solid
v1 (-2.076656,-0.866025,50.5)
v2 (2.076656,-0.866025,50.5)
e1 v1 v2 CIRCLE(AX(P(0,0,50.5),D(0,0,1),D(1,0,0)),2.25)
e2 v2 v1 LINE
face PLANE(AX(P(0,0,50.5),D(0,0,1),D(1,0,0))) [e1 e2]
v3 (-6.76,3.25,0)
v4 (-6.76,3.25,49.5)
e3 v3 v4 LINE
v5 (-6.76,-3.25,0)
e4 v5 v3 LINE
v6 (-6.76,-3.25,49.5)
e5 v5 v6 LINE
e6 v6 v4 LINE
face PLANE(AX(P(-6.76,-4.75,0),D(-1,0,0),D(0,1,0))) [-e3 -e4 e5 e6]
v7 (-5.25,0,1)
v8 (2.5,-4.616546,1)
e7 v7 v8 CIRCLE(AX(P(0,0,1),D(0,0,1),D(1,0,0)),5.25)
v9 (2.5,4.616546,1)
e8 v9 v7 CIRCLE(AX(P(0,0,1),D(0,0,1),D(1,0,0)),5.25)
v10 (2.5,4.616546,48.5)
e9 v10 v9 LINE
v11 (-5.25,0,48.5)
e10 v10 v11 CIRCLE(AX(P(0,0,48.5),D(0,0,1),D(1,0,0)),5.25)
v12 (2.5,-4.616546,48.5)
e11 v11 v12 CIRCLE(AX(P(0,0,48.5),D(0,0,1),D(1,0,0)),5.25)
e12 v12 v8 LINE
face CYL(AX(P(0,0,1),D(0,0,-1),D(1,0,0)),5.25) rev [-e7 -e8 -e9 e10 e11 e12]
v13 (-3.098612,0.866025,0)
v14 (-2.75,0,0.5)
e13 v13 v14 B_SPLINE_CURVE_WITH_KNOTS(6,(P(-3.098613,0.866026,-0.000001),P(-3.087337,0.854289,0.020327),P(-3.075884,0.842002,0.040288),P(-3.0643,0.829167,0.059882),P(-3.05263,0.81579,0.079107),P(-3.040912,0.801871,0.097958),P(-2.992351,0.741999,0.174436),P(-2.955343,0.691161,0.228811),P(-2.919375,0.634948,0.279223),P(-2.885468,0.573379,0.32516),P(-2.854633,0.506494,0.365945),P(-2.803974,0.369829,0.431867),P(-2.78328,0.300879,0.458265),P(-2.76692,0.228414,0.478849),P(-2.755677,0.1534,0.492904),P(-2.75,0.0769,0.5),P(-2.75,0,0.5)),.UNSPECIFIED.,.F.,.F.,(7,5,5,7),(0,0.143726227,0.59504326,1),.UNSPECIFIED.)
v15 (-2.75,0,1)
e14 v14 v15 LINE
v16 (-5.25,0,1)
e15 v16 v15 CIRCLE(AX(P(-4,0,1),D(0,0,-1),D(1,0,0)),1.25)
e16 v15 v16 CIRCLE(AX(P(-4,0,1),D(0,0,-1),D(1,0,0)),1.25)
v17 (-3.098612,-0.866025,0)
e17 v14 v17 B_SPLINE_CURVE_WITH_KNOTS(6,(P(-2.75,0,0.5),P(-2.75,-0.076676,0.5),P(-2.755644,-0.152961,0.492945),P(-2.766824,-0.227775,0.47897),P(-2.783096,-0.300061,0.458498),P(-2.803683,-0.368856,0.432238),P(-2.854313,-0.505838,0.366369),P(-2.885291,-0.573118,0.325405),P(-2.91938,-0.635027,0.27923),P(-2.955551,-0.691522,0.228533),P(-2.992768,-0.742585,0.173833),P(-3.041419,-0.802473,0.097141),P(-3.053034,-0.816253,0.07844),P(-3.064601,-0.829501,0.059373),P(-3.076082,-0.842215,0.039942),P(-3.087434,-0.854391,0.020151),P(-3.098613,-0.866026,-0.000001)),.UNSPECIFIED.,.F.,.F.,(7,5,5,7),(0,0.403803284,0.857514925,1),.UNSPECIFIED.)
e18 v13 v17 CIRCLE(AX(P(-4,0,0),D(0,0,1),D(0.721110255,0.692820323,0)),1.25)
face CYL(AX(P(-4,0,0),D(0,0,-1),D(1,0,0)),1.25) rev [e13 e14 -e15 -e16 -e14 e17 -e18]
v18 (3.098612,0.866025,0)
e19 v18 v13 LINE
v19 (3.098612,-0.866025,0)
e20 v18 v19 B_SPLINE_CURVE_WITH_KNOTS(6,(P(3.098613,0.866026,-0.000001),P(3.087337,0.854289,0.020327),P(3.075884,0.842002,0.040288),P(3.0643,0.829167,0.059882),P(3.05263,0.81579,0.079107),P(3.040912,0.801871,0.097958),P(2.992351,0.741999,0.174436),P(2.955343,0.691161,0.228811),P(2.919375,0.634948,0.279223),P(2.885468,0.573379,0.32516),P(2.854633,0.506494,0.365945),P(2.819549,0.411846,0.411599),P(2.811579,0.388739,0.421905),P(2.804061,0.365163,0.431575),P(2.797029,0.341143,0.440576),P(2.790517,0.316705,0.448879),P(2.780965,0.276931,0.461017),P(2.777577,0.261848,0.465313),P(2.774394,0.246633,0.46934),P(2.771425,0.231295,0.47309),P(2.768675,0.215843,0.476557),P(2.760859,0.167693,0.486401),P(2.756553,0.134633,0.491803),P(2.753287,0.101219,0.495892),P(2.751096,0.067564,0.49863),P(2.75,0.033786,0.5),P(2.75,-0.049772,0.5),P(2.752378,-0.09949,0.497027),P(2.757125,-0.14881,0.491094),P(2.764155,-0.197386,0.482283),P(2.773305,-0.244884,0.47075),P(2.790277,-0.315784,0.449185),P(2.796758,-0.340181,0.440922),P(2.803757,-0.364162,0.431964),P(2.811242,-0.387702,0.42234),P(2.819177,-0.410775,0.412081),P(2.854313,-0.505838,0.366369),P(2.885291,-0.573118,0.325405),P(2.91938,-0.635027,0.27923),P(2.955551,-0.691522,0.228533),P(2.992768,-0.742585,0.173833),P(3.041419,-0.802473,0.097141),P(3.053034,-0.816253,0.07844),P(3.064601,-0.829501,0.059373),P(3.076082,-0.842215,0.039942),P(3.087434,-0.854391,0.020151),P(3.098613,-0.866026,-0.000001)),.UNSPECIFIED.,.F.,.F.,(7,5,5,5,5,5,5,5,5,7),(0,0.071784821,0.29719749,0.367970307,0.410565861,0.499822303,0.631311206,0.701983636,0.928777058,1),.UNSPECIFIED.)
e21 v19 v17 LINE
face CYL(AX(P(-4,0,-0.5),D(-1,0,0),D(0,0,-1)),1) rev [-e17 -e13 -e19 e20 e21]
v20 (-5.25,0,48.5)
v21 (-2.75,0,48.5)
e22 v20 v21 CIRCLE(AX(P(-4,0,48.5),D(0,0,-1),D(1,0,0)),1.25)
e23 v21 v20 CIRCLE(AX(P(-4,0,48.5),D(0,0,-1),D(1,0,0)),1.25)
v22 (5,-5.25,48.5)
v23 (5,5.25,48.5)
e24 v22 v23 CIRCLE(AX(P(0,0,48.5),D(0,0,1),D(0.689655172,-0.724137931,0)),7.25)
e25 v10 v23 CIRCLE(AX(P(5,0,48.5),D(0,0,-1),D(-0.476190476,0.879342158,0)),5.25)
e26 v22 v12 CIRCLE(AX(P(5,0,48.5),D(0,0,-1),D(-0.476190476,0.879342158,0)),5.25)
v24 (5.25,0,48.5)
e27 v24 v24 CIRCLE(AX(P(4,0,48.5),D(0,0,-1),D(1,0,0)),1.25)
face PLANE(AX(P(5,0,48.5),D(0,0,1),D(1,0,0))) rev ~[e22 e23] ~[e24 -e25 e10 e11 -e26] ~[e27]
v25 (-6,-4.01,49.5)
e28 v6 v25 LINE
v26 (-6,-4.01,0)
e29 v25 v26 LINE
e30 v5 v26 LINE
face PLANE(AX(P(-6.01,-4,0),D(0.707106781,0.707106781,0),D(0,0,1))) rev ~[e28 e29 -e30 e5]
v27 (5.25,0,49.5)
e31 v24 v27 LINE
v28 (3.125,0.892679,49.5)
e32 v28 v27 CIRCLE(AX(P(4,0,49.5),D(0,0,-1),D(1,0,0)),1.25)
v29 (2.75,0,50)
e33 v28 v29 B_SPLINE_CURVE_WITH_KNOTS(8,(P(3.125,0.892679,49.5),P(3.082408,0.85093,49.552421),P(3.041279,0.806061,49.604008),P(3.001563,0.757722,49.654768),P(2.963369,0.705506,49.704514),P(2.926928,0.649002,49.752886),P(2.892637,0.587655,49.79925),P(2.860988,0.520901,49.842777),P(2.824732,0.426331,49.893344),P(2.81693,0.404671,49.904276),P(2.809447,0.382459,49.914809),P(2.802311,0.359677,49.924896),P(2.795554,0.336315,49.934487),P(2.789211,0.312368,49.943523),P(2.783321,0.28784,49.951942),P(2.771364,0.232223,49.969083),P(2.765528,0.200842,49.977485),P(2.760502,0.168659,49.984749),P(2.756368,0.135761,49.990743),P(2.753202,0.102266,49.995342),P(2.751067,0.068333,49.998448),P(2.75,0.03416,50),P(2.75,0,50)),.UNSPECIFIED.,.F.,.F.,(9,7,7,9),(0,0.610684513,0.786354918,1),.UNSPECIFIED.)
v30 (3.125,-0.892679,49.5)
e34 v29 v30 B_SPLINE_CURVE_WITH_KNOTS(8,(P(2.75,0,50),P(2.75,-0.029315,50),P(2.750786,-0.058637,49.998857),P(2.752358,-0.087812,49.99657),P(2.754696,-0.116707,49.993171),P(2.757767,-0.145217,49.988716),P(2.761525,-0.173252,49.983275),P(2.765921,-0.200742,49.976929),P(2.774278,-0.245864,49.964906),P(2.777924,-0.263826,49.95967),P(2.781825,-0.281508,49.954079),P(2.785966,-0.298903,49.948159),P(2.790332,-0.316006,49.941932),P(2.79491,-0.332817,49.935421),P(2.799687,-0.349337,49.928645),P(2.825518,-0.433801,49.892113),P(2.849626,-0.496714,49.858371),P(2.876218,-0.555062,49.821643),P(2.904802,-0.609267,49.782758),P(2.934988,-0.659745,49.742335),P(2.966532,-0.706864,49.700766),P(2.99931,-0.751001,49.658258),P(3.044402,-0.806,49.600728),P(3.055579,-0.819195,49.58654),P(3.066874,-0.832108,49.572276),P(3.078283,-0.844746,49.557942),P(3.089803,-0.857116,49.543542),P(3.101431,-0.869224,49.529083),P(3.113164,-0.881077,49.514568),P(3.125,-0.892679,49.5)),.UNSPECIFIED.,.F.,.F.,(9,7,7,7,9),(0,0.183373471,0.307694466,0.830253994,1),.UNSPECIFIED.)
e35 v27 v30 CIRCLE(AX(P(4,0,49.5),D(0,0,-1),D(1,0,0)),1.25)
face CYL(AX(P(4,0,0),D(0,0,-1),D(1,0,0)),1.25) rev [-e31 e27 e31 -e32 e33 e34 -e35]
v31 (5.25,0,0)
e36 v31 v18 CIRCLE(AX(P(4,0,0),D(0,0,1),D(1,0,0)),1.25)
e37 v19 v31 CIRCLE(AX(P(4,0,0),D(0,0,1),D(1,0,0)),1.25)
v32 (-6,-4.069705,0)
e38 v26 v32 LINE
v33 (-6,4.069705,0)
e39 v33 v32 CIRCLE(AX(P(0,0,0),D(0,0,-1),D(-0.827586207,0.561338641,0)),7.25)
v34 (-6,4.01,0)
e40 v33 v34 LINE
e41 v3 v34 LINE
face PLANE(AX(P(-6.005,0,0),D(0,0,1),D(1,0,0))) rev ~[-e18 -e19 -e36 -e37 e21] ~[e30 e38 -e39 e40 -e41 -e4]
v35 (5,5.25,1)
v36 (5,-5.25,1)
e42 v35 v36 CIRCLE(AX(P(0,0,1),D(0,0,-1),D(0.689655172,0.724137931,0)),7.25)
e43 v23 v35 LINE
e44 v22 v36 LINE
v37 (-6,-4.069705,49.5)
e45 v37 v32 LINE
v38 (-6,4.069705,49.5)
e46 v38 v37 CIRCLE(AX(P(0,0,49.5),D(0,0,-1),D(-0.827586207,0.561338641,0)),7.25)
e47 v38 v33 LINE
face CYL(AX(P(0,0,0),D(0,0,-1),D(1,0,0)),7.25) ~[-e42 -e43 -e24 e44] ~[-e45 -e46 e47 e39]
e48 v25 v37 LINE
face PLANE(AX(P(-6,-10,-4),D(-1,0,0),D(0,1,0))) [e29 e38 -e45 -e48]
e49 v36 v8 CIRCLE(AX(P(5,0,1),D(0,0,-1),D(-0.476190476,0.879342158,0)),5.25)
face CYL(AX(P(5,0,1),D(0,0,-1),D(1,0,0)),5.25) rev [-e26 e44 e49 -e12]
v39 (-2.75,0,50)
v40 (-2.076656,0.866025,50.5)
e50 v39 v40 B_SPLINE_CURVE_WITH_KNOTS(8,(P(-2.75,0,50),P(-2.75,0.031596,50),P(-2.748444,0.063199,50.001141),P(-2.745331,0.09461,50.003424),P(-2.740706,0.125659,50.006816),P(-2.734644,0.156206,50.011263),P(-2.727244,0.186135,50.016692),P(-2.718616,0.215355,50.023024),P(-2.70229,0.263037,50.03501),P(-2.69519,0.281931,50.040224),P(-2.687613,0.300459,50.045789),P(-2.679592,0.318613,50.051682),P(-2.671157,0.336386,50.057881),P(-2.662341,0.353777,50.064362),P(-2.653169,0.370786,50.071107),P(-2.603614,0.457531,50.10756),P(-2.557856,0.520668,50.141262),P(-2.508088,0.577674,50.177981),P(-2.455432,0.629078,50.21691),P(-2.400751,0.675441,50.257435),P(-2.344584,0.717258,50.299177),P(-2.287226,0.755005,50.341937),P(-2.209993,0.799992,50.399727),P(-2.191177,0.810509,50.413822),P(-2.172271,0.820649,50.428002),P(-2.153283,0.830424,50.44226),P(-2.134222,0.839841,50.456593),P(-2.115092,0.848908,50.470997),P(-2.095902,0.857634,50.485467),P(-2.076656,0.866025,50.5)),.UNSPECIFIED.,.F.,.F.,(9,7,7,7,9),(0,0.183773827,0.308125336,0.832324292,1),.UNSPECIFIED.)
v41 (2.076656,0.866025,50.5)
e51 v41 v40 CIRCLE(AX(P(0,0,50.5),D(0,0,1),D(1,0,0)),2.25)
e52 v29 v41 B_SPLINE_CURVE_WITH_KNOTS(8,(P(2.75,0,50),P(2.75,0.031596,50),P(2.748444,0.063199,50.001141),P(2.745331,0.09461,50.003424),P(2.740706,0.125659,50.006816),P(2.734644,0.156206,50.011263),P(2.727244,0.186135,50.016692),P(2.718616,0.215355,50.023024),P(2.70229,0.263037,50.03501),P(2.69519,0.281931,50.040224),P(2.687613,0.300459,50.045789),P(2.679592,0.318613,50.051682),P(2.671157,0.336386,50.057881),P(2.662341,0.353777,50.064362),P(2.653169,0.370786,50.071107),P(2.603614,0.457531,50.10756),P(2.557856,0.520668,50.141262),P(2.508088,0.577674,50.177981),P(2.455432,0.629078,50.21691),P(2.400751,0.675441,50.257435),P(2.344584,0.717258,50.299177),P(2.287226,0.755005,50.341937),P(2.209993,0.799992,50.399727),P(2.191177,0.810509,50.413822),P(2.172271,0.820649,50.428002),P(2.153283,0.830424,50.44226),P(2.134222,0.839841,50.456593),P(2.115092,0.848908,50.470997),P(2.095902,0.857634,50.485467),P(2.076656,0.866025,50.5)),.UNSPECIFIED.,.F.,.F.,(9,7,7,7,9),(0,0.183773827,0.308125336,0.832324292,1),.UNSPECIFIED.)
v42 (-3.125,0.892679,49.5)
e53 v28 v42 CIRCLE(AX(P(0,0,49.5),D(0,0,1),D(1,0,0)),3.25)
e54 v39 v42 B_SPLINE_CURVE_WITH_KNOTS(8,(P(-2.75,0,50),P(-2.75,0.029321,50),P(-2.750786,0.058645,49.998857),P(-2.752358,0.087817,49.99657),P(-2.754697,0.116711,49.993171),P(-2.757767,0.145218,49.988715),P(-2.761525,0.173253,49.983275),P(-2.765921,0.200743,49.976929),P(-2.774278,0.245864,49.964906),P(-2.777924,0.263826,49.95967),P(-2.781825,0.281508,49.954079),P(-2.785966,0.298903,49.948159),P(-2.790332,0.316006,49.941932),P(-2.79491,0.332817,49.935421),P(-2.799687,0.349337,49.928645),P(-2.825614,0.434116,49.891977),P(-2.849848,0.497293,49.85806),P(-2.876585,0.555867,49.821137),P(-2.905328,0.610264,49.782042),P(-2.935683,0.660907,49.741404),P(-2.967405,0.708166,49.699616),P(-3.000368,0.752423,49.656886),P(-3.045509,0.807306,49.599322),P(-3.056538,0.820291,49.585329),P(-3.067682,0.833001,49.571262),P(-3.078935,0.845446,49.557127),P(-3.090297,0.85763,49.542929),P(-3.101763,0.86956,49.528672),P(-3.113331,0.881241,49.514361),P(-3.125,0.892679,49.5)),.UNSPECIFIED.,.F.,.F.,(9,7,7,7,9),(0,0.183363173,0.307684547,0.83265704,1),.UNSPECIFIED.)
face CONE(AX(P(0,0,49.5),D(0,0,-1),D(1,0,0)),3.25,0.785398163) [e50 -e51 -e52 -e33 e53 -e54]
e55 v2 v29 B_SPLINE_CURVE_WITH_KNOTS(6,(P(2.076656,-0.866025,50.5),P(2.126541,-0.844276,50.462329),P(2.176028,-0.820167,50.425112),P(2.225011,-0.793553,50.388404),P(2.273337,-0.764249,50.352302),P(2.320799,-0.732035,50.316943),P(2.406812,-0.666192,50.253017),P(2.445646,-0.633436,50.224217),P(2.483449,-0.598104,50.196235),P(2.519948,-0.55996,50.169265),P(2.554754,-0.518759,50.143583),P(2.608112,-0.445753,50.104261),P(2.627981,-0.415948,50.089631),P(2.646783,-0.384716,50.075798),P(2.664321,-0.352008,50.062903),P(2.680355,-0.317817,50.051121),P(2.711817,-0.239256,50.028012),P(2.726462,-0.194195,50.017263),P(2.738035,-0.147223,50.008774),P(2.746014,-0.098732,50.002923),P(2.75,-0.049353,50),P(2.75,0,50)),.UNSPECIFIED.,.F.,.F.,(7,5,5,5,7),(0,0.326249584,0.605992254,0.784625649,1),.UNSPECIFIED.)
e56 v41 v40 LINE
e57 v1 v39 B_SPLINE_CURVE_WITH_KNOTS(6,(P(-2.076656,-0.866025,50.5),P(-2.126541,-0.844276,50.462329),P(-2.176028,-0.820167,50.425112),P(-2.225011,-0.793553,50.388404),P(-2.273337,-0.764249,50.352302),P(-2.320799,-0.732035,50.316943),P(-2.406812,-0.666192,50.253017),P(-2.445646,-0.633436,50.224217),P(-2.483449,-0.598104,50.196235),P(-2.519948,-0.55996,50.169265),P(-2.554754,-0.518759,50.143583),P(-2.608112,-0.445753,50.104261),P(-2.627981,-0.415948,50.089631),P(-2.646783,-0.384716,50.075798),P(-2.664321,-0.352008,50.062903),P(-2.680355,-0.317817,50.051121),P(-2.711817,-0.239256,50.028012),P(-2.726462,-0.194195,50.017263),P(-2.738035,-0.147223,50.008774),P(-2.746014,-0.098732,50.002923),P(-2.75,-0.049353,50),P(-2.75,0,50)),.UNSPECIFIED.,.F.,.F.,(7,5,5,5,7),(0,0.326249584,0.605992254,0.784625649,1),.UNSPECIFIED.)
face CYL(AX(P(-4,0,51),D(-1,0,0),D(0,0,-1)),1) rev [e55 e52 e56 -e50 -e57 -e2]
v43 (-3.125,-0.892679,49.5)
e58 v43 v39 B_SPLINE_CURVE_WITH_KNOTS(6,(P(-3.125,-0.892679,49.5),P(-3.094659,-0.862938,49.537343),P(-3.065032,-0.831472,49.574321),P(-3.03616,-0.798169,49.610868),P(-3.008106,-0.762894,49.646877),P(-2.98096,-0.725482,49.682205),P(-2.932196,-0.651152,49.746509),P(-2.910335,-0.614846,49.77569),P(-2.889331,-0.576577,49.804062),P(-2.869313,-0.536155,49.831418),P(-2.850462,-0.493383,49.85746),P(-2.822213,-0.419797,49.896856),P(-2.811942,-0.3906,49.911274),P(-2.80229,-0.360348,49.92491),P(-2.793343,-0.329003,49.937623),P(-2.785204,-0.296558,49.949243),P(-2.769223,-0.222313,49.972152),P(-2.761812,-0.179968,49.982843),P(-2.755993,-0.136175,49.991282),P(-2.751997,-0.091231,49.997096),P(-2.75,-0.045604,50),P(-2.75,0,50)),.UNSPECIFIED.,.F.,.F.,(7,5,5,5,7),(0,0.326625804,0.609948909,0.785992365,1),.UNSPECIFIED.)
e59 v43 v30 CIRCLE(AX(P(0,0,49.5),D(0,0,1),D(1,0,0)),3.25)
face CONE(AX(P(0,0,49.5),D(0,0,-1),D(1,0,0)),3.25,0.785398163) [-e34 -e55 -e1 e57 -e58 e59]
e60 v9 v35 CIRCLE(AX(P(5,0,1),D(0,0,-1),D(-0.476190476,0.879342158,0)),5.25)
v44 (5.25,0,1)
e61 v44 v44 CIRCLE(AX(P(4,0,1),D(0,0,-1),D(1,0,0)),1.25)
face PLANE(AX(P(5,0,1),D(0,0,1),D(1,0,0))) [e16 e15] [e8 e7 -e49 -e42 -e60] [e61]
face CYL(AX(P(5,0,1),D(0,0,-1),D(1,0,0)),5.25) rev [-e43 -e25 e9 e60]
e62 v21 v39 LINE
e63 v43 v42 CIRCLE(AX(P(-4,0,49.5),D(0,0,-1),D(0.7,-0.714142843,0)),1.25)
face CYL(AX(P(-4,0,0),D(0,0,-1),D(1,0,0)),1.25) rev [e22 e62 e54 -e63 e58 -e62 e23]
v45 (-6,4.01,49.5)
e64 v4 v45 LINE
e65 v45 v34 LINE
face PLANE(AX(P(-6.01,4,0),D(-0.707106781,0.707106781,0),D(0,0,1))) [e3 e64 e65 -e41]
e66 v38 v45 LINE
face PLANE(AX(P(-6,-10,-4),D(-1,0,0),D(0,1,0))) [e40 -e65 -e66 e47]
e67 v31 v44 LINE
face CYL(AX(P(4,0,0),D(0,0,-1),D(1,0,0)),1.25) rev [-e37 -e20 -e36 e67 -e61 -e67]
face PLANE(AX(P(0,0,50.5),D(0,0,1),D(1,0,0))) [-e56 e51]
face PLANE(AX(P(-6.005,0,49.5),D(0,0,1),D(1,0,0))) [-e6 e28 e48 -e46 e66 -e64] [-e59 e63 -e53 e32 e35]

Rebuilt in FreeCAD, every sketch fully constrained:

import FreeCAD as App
import Part
import Sketcher

V = App.Vector
Q = App.Units.Quantity


def edges_at(feature, points):
    """Names of the edges that pass closest to the given points."""
    edges = feature.Shape.Edges
    near = lambda p: min(range(len(edges)), key=lambda i: edges[i].distToShape(Part.Vertex(*p))[0])
    return sorted({f"Edge{near(p) + 1}" for p in points})


def add_polygon(sketch, points):
    """Adds a closed chain of lines whose ends are joined by coincident constraints."""
    first, n = sketch.GeometryCount, len(points)
    for a, b in zip(points, points[1:] + points[:1]):
        sketch.addGeometry(Part.LineSegment(App.Vector(*a, 0), App.Vector(*b, 0)), False)
    for i in range(n):
        sketch.addConstraint(Sketcher.Constraint("Coincident", first + i, 2, first + (i + 1) % n, 1))

doc = App.newDocument("Part")
body = doc.addObject("PartDesign::Body", "Body")

sketch1 = body.newObject("Sketcher::SketchObject", "Sketch")
sketch1.AttachmentSupport = (doc.getObject("XY_Plane"), [""])
sketch1.MapMode = "FlatFace"
add_polygon(sketch1, [(-6.76, 4.75), (-6.76, -4.75), (-5.25, -4.75), (-5.25, 4.75)])
sketch1.addConstraint([
    Sketcher.Constraint("Vertical", 0),
    Sketcher.Constraint("Horizontal", 1),
    Sketcher.Constraint("Vertical", 2),
    Sketcher.Constraint("Horizontal", 3),
    Sketcher.Constraint("DistanceY", 0, 2, 0, 1, Q("9.5 mm")),
    Sketcher.Constraint("DistanceX", 1, 1, 1, 2, Q("1.51 mm")),
    Sketcher.Constraint("DistanceX", 0, 2, -1, 1, Q("6.76 mm")),
    Sketcher.Constraint("DistanceY", 0, 2, -1, 1, Q("4.75 mm")),
])
pad1 = body.newObject("PartDesign::Pad", "Pad")
pad1.Profile = sketch1
pad1.Length = 49.5
doc.recompute()

chamfer = body.newObject("PartDesign::Chamfer", "Chamfer")
chamfer.Base = (pad1, edges_at(pad1, [(-6.76, -4.75, 24.75), (-6.76, 4.75, 24.75)]))
chamfer.Size = 1.5
body2 = doc.addObject("PartDesign::Body", "Body001")

sketch2 = body2.newObject("Sketcher::SketchObject", "Sketch001")
sketch2.AttachmentSupport = (doc.getObject("XY_Plane001"), [""])
sketch2.MapMode = "FlatFace"
sketch2.AttachmentOffset = App.Placement(V(0, 0, -4), App.Rotation())
add_polygon(sketch2, [(-11, 10), (-11, -10), (-6, -10), (-6, 10)])
sketch2.addConstraint([
    Sketcher.Constraint("Vertical", 0),
    Sketcher.Constraint("Horizontal", 1),
    Sketcher.Constraint("Vertical", 2),
    Sketcher.Constraint("Horizontal", 3),
    Sketcher.Constraint("DistanceX", 1, 1, 1, 2, Q("5 mm")),
    Sketcher.Constraint("DistanceY", 0, 2, 0, 1, Q("20 mm")),
    Sketcher.Constraint("DistanceX", 0, 2, -1, 1, Q("11 mm")),
    Sketcher.Constraint("DistanceY", 0, 2, -1, 1, Q("10 mm")),
])
pad2 = body2.newObject("PartDesign::Pad", "Pad001")
pad2.Profile = sketch2
pad2.Length = 60
body3 = doc.addObject("PartDesign::Body", "Body002")

sketch3 = body3.newObject("Sketcher::SketchObject", "Sketch002")
sketch3.AttachmentSupport = (doc.getObject("XY_Plane002"), [""])
sketch3.MapMode = "FlatFace"
sketch3.addGeometry(Part.Circle(V(-4, 0, 0), V(0, 0, 1), 1.25), False)
sketch3.addConstraint([
    Sketcher.Constraint("PointOnObject", 0, 3, -1),
    Sketcher.Constraint("Diameter", 0, Q("2.5 mm")),
    Sketcher.Constraint("DistanceX", 0, 3, -1, 1, Q("4 mm")),
])
pad3 = body3.newObject("PartDesign::Pad", "Pad002")
pad3.Profile = sketch3
pad3.Length = 55
body4 = doc.addObject("PartDesign::Body", "Body003")

sketch4 = body4.newObject("Sketcher::SketchObject", "Sketch003")
sketch4.AttachmentSupport = (doc.getObject("XY_Plane003"), [""])
sketch4.MapMode = "FlatFace"
sketch4.addGeometry(Part.Circle(V(4, 0, 0), V(0, 0, 1), 1.25), False)
sketch4.addConstraint([
    Sketcher.Constraint("PointOnObject", 0, 3, -1),
    Sketcher.Constraint("Diameter", 0, Q("2.5 mm")),
    Sketcher.Constraint("DistanceX", -1, 1, 0, 3, Q("4 mm")),
])
pad4 = body4.newObject("PartDesign::Pad", "Pad003")
pad4.Profile = sketch4
pad4.Length = 55
body5 = doc.addObject("PartDesign::Body", "Body004")

sketch5 = body5.newObject("Sketcher::SketchObject", "Sketch004")
sketch5.AttachmentSupport = (doc.getObject("YZ_Plane004"), [""])
sketch5.MapMode = "FlatFace"
sketch5.AttachmentOffset = App.Placement(V(0, 0, -4), App.Rotation())
sketch5.addGeometry(Part.Circle(V(0, -0.5, 0), V(0, 0, 1), 1), False)
sketch5.addConstraint([
    Sketcher.Constraint("PointOnObject", 0, 3, -2),
    Sketcher.Constraint("Diameter", 0, Q("2 mm")),
    Sketcher.Constraint("DistanceY", 0, 3, -1, 1, Q("0.5 mm")),
])
pad5 = body5.newObject("PartDesign::Pad", "Pad004")
pad5.Profile = sketch5
pad5.Length = 8
body6 = doc.addObject("PartDesign::Body", "Body005")

sketch6 = body6.newObject("Sketcher::SketchObject", "Sketch005")
sketch6.AttachmentSupport = (doc.getObject("YZ_Plane005"), [""])
sketch6.MapMode = "FlatFace"
sketch6.AttachmentOffset = App.Placement(V(0, 0, -4), App.Rotation())
sketch6.addGeometry(Part.Circle(V(0, 51, 0), V(0, 0, 1), 1), False)
sketch6.addConstraint([
    Sketcher.Constraint("PointOnObject", 0, 3, -2),
    Sketcher.Constraint("Diameter", 0, Q("2 mm")),
    Sketcher.Constraint("DistanceY", -1, 1, 0, 3, Q("51 mm")),
])
pad6 = body6.newObject("PartDesign::Pad", "Pad005")
pad6.Profile = sketch6
pad6.Length = 8
doc.recompute()

boolean = body6.newObject("PartDesign::Boolean", "Boolean")
boolean.Type = "Fuse"
boolean.addObjects([body3])
doc.recompute()

boolean2 = body6.newObject("PartDesign::Boolean", "Boolean001")
boolean2.Type = "Fuse"
boolean2.addObjects([body4])
doc.recompute()

boolean3 = body6.newObject("PartDesign::Boolean", "Boolean002")
boolean3.Type = "Fuse"
boolean3.addObjects([body5])
body7 = doc.addObject("PartDesign::Body", "Body006")

sketch7 = body7.newObject("Sketcher::SketchObject", "Sketch006")
sketch7.AttachmentSupport = (doc.getObject("XY_Plane006"), [""])
sketch7.MapMode = "FlatFace"
sketch7.AttachmentOffset = App.Placement(V(0, 0, 1), App.Rotation())
sketch7.addGeometry(Part.Circle(V(0, 0, 0), V(0, 0, 1), 5.25), False)
sketch7.addConstraint([
    Sketcher.Constraint("Coincident", 0, 3, -1, 1),
    Sketcher.Constraint("Diameter", 0, Q("10.5 mm")),
])
pad7 = body7.newObject("PartDesign::Pad", "Pad006")
pad7.Profile = sketch7
pad7.Length = 47.5
body8 = doc.addObject("PartDesign::Body", "Body007")

sketch8 = body8.newObject("Sketcher::SketchObject", "Sketch007")
sketch8.AttachmentSupport = (doc.getObject("XY_Plane007"), [""])
sketch8.MapMode = "FlatFace"
sketch8.AttachmentOffset = App.Placement(V(0, 0, 1), App.Rotation())
sketch8.addGeometry(Part.Circle(V(5, 0, 0), V(0, 0, 1), 5.25), False)
sketch8.addConstraint([
    Sketcher.Constraint("PointOnObject", 0, 3, -1),
    Sketcher.Constraint("Diameter", 0, Q("10.5 mm")),
    Sketcher.Constraint("DistanceX", -1, 1, 0, 3, Q("5 mm")),
])
pad8 = body8.newObject("PartDesign::Pad", "Pad007")
pad8.Profile = sketch8
pad8.Length = 47.5
doc.recompute()

boolean4 = body8.newObject("PartDesign::Boolean", "Boolean003")
boolean4.Type = "Fuse"
boolean4.addObjects([body7])
body9 = doc.addObject("PartDesign::Body", "Body008")

sketch9 = body9.newObject("Sketcher::SketchObject", "Sketch008")
sketch9.AttachmentSupport = (doc.getObject("XY_Plane008"), [""])
sketch9.MapMode = "FlatFace"
sketch9.addGeometry(Part.Circle(V(0, 0, 0), V(0, 0, 1), 3.25), False)
sketch9.addConstraint([
    Sketcher.Constraint("Coincident", 0, 3, -1, 1),
    Sketcher.Constraint("Diameter", 0, Q("6.5 mm")),
])
pad9 = body9.newObject("PartDesign::Pad", "Pad008")
pad9.Profile = sketch9
pad9.Length = 50.5
doc.recompute()

chamfer2 = body9.newObject("PartDesign::Chamfer", "Chamfer001")
chamfer2.Base = (pad9, edges_at(pad9, [(-3.25, 0, 50.5), (-3.25, 0, 0)]))
chamfer2.Size = 1
body10 = doc.addObject("PartDesign::Body", "Body009")

sketch10 = body10.newObject("Sketcher::SketchObject", "Sketch009")
sketch10.AttachmentSupport = (doc.getObject("XY_Plane009"), [""])
sketch10.MapMode = "FlatFace"
sketch10.addGeometry(Part.Circle(V(0, 0, 0), V(0, 0, 1), 7.25), False)
sketch10.addConstraint([
    Sketcher.Constraint("Coincident", 0, 3, -1, 1),
    Sketcher.Constraint("Diameter", 0, Q("14.5 mm")),
])
pad10 = body10.newObject("PartDesign::Pad", "Pad009")
pad10.Profile = sketch10
pad10.Length = 49.5
doc.recompute()

boolean5 = body10.newObject("PartDesign::Boolean", "Boolean004")
boolean5.Type = "Fuse"
boolean5.addObjects([body9])
doc.recompute()

boolean6 = body10.newObject("PartDesign::Boolean", "Boolean005")
boolean6.Type = "Cut"
boolean6.addObjects([body8])
doc.recompute()

boolean7 = body10.newObject("PartDesign::Boolean", "Boolean006")
boolean7.Type = "Cut"
boolean7.addObjects([body6])
doc.recompute()

boolean8 = body10.newObject("PartDesign::Boolean", "Boolean007")
boolean8.Type = "Cut"
boolean8.addObjects([body2])
doc.recompute()

boolean9 = body10.newObject("PartDesign::Boolean", "Boolean008")
boolean9.Type = "Fuse"
boolean9.addObjects([body])

doc.recompute()
